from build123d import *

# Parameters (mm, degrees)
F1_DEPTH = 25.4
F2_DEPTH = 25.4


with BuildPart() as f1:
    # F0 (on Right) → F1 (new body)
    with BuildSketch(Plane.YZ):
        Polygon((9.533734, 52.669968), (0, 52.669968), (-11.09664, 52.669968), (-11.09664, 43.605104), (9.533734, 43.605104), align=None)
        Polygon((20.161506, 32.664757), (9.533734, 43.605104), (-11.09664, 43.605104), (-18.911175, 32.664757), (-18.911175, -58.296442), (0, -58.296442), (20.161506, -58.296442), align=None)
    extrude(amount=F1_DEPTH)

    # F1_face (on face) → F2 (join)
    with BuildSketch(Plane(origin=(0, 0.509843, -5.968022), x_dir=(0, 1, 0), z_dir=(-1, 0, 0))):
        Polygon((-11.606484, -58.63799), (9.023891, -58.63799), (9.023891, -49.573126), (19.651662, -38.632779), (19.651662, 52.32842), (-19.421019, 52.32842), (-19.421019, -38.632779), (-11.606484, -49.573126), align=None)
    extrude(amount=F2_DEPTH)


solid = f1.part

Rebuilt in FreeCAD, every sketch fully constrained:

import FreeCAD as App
import Part
import Sketcher
Q = App.Units.Quantity


def add_polygon(sketch, points):
    """Adds a closed chain of lines whose ends are joined by coincident constraints."""
    first, n = sketch.GeometryCount, len(points)
    for a, b in zip(points, points[1:] + points[:1]):
        sketch.addGeometry(Part.LineSegment(App.Vector(*a, 0), App.Vector(*b, 0)), False)
    for i in range(n):
        sketch.addConstraint(Sketcher.Constraint("Coincident", first + i, 2, first + (i + 1) % n, 1))

doc = App.newDocument("Part")
body = doc.addObject("PartDesign::Body", "Body")

# Sketch on YZ plane
sketch1 = body.newObject("Sketcher::SketchObject", "Sketch")
sketch1.AttachmentSupport = (doc.getObject("YZ_Plane"), [""])
sketch1.MapMode = "FlatFace"
add_polygon(sketch1, [(9.533734, 52.669968), (-11.09664, 52.669968), (-11.09664, 43.605104), (-18.911175, 32.664757), (-18.911175, -58.296442), (20.161506, -58.296442), (20.161506, 32.664757), (9.533734, 43.605104)])  # lines 0-7
sketch1.addConstraint(Sketcher.Constraint("Horizontal", 0))
sketch1.addConstraint(Sketcher.Constraint("Vertical", 1))
sketch1.addConstraint(Sketcher.Constraint("Vertical", 3))
sketch1.addConstraint(Sketcher.Constraint("Horizontal", 4))
sketch1.addConstraint(Sketcher.Constraint("Vertical", 5))
sketch1.addConstraint(Sketcher.Constraint("Vertical", 7))
sketch1.addConstraint(Sketcher.Constraint("Horizontal", 2, 2, 5, 2))
sketch1.addConstraint(Sketcher.Constraint("Horizontal", 1, 2, 6, 2))
sketch1.addConstraint(Sketcher.Constraint("DistanceY", 3, 2, 3, 1, 90.961199))
sketch1.addConstraint(Sketcher.Constraint("DistanceX", 4, 1, 4, 2, 39.072681))
sketch1.addConstraint(Sketcher.Constraint("DistanceX", 0, 2, 0, 1, 20.630374))
sketch1.addConstraint(Sketcher.Constraint("DistanceY", 1, 2, 1, 1, 9.064864))
sketch1.addConstraint(Sketcher.Constraint("DistanceX", 0, 2, -1, 1, 11.09664))
sketch1.addConstraint(Sketcher.Constraint("DistanceY", 2, 2, 0, 2, 20.005211))
sketch1.addConstraint(Sketcher.Constraint("DistanceX", 6, 2, 5, 2, 10.627772))
sketch1.addConstraint(Sketcher.Constraint("DistanceY", -1, 1, 0, 2, 52.669968))
pad1 = body.newObject("PartDesign::Pad", "Pad")
pad1.Profile = sketch1
pad1.Length = Q("1 in")

# Sketch on YZ plane
sketch2 = body.newObject("Sketcher::SketchObject", "Sketch001")
sketch2.AttachmentSupport = (doc.getObject("YZ_Plane"), [""])
sketch2.MapMode = "FlatFace"
add_polygon(sketch2, [(-11.096641, 52.669968), (9.533734, 52.669968), (9.533734, 43.605104), (20.161505, 32.664757), (20.161505, -58.296442), (-18.911176, -58.296442), (-18.911176, 32.664757), (-11.096641, 43.605104)])  # lines 0-7
sketch2.addConstraint(Sketcher.Constraint("Horizontal", 0))
sketch2.addConstraint(Sketcher.Constraint("Vertical", 1))
sketch2.addConstraint(Sketcher.Constraint("Vertical", 3))
sketch2.addConstraint(Sketcher.Constraint("Horizontal", 4))
sketch2.addConstraint(Sketcher.Constraint("Vertical", 5))
sketch2.addConstraint(Sketcher.Constraint("Vertical", 7))
sketch2.addConstraint(Sketcher.Constraint("Horizontal", 2, 2, 5, 2))
sketch2.addConstraint(Sketcher.Constraint("Horizontal", 1, 2, 6, 2))
sketch2.addConstraint(Sketcher.Constraint("DistanceY", 3, 2, 3, 1, 90.961199))
sketch2.addConstraint(Sketcher.Constraint("DistanceX", 4, 2, 4, 1, 39.072681))
sketch2.addConstraint(Sketcher.Constraint("DistanceX", 0, 1, 0, 2, 20.630375))
sketch2.addConstraint(Sketcher.Constraint("DistanceY", 1, 2, 1, 1, 9.064864))
sketch2.addConstraint(Sketcher.Constraint("DistanceX", 6, 2, -1, 1, 11.096641))
sketch2.addConstraint(Sketcher.Constraint("DistanceX", 1, 2, 2, 2, 10.627771))
sketch2.addConstraint(Sketcher.Constraint("DistanceY", 2, 2, 0, 2, 20.005211))
sketch2.addConstraint(Sketcher.Constraint("DistanceY", -1, 1, 0, 2, 52.669968))
pad2 = body.newObject("PartDesign::Pad", "Pad001")
pad2.Profile = sketch2
pad2.Length = Q("1 in")
pad2.Reversed = True

doc.recompute()
